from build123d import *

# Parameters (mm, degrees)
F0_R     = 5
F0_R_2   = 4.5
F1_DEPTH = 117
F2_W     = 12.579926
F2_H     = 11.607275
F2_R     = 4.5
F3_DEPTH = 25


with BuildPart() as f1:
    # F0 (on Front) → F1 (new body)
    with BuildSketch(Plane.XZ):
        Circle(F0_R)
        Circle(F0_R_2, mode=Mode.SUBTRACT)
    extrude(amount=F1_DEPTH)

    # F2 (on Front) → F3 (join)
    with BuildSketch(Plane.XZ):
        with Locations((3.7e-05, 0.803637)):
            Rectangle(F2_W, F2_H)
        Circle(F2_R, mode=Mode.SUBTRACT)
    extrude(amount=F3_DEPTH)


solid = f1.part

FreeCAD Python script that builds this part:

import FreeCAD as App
import Part
import Sketcher


def add_polygon(sketch, points):
    """Adds a closed chain of lines whose ends are joined by coincident constraints."""
    first, n = sketch.GeometryCount, len(points)
    for a, b in zip(points, points[1:] + points[:1]):
        sketch.addGeometry(Part.LineSegment(App.Vector(*a, 0), App.Vector(*b, 0)), False)
    for i in range(n):
        sketch.addConstraint(Sketcher.Constraint("Coincident", first + i, 2, first + (i + 1) % n, 1))

doc = App.newDocument("Part")
body = doc.addObject("PartDesign::Body", "Body")

sketch1 = body.newObject("Sketcher::SketchObject", "Sketch")
sketch1.AttachmentSupport = (doc.getObject("XZ_Plane"), [""])
sketch1.MapMode = "FlatFace"
sketch1.addGeometry(Part.Circle(App.Vector(0, 0, 0), App.Vector(0, 0, 1), 5), False)
sketch1.addGeometry(Part.Circle(App.Vector(0, 0, 0), App.Vector(0, 0, 1), 4.5), False)
sketch1.addConstraint(Sketcher.Constraint("Coincident", 0, 3, -1, 1))
sketch1.addConstraint(Sketcher.Constraint("Coincident", 1, 3, -1, 1))
sketch1.addConstraint(Sketcher.Constraint("Diameter", 0, 10.0))
sketch1.addConstraint(Sketcher.Constraint("Diameter", 1, 9.0))
pad1 = body.newObject("PartDesign::Pad", "Pad")
pad1.Profile = sketch1
pad1.Length = 117

sketch2 = body.newObject("Sketcher::SketchObject", "Sketch001")
sketch2.AttachmentSupport = (doc.getObject("XZ_Plane"), [""])
sketch2.MapMode = "FlatFace"
add_polygon(sketch2, [(-6.3, 6.6), (-6.3, -5), (6.3, -5), (6.3, 6.6)])
sketch2.addGeometry(Part.Circle(App.Vector(0, 0, 0), App.Vector(0, 0, 1), 4.5), False)
sketch2.addConstraint(Sketcher.Constraint("Vertical", 0))
sketch2.addConstraint(Sketcher.Constraint("Horizontal", 1))
sketch2.addConstraint(Sketcher.Constraint("Vertical", 2))
sketch2.addConstraint(Sketcher.Constraint("Horizontal", 3))
sketch2.addConstraint(Sketcher.Constraint("Coincident", 4, 3, -1, 1))
sketch2.addConstraint(Sketcher.Constraint("Diameter", 4, 9.0))
sketch2.addConstraint(Sketcher.Constraint("DistanceY", 0, 2, -1, 1, 5.0))
sketch2.addConstraint(Sketcher.Constraint("DistanceX", -1, 1, 1, 2, 6.29))
sketch2.addConstraint(Sketcher.Constraint("DistanceX", 1, 1, 1, 2, 12.579926))
sketch2.addConstraint(Sketcher.Constraint("DistanceY", 0, 2, 0, 1, 11.607275))
pad2 = body.newObject("PartDesign::Pad", "Pad001")
pad2.Profile = sketch2
pad2.Length = 25

doc.recompute()
